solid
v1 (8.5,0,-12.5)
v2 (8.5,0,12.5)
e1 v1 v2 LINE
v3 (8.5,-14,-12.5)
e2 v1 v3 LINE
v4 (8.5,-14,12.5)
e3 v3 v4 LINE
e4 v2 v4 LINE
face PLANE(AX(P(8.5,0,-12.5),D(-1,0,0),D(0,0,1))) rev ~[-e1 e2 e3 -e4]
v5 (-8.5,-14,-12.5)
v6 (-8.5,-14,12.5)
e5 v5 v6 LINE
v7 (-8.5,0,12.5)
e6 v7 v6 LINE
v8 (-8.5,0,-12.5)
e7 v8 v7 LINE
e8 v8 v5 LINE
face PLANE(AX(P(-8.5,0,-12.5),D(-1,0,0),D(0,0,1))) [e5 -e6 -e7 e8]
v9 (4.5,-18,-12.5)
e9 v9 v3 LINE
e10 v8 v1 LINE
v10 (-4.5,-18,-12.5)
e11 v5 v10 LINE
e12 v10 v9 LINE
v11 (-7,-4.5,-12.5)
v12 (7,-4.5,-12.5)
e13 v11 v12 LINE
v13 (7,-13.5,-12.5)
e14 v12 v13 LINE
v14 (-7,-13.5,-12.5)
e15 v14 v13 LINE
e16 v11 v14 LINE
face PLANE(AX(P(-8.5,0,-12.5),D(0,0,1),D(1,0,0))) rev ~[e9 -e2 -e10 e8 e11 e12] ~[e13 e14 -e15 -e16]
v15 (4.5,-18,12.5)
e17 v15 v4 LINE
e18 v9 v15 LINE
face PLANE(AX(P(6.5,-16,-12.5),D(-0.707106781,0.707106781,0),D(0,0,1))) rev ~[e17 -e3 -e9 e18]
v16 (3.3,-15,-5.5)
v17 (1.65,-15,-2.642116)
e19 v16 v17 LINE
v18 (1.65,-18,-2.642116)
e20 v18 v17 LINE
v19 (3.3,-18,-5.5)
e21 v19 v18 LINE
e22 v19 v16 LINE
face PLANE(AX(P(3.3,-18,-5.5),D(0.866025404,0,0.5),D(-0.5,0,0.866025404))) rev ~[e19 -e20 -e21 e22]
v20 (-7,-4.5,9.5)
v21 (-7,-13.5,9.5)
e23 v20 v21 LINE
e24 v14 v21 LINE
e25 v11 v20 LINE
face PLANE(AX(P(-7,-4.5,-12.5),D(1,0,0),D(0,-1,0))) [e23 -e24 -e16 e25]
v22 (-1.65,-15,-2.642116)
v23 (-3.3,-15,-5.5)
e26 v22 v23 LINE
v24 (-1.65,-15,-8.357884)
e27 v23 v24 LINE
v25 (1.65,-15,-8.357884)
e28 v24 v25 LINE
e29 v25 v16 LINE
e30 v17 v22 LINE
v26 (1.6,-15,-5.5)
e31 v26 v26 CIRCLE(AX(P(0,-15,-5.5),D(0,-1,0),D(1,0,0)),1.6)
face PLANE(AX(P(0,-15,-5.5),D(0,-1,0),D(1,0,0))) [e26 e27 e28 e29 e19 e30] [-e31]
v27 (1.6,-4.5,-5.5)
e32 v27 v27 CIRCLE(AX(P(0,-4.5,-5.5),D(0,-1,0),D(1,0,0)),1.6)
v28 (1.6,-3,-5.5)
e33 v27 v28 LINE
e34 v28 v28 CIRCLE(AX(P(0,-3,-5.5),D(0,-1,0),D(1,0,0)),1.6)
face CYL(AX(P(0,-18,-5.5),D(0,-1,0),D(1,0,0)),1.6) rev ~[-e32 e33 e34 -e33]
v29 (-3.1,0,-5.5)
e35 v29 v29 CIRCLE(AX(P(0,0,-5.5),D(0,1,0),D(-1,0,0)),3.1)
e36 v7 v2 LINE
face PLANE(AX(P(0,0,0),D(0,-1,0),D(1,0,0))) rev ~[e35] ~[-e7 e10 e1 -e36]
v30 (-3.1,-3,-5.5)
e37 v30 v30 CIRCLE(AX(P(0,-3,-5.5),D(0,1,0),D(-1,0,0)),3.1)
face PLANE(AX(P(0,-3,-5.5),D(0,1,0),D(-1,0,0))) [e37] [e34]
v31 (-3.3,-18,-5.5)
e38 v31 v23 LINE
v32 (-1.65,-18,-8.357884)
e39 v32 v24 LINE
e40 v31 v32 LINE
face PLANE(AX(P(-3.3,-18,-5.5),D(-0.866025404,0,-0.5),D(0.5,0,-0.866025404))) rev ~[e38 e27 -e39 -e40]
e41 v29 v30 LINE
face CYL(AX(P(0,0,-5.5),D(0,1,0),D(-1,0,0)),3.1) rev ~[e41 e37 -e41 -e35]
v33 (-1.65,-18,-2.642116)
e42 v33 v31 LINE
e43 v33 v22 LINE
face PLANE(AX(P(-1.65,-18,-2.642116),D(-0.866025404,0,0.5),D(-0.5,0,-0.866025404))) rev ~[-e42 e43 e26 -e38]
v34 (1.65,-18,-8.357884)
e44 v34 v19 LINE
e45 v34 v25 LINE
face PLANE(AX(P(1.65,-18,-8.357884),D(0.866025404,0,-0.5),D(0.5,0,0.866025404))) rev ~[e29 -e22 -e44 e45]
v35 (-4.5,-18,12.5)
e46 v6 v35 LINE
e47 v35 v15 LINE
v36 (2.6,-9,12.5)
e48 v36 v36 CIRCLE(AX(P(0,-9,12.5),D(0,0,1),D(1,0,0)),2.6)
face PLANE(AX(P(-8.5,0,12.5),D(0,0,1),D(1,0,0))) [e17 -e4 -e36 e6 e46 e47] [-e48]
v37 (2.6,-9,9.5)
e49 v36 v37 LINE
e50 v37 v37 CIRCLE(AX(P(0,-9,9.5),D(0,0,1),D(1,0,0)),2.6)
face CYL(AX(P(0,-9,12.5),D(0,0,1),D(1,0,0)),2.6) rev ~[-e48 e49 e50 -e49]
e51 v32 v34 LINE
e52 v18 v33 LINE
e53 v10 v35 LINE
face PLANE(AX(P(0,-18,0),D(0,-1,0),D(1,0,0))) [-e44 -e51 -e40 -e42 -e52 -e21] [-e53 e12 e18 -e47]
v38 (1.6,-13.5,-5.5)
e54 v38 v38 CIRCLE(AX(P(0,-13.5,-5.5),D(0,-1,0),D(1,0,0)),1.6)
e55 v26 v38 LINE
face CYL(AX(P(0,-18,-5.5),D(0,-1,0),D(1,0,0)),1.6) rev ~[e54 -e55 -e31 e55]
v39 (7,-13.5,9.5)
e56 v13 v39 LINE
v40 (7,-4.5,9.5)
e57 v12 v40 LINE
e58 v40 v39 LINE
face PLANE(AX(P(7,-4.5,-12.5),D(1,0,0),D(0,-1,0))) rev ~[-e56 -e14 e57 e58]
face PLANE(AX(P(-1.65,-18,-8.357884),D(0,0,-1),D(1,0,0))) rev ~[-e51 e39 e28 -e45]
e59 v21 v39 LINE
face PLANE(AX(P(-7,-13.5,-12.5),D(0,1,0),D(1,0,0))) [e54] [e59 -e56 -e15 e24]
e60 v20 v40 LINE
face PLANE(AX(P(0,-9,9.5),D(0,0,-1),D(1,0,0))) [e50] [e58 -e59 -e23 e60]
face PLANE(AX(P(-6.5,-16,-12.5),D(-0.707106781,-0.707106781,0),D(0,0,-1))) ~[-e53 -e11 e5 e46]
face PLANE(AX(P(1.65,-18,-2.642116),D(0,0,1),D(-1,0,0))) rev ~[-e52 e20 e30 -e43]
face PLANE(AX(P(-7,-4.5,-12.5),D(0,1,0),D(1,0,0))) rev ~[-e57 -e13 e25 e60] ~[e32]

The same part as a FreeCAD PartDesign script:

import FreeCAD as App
import Part
import Sketcher

V = App.Vector
Q = App.Units.Quantity


def edges_at(feature, points):
    """Names of the edges that pass closest to the given points."""
    edges = feature.Shape.Edges
    near = lambda p: min(range(len(edges)), key=lambda i: edges[i].distToShape(Part.Vertex(*p))[0])
    return sorted({f"Edge{near(p) + 1}" for p in points})


def add_polygon(sketch, points):
    """Adds a closed chain of lines whose ends are joined by coincident constraints."""
    first, n = sketch.GeometryCount, len(points)
    for a, b in zip(points, points[1:] + points[:1]):
        sketch.addGeometry(Part.LineSegment(App.Vector(*a, 0), App.Vector(*b, 0)), False)
    for i in range(n):
        sketch.addConstraint(Sketcher.Constraint("Coincident", first + i, 2, first + (i + 1) % n, 1))

doc = App.newDocument("Part")
params = doc.addObject("Spreadsheet::Sheet", "Params")
for row, (alias, value) in enumerate([
    ("sketch1_width", "17 mm"),
    ("sketch1_height", "25 mm"),
    ("pad1_length", "18 mm"),
    ("sketch2_width", "14 mm"),
    ("sketch2_height", "9 mm"),
    ("pocket1_length", "22 mm"),
    ("sketch3_diameter", "3.2 mm"),
    ("pocket2_length", "25 mm"),
    ("sketch4_diameter", "5.2 mm"),
    ("pocket3_length", "25 mm"),
    ("sketch5_diameter", "6.2 mm"),
    ("pocket4_length", "3 mm"),
    ("sketch6_width", "3.3 mm"),
    ("sketch6_length", "3.3 mm"),
    ("pocket5_length", "3 mm"),
    ("chamfer_size", "4 mm"),
], start=1):
    params.set(f"A{row}", alias)
    params.set(f"B{row}", "=" + value)
    params.setAlias(f"B{row}", alias)

body = doc.addObject("PartDesign::Body", "Body")

# Sketch on XZ plane
sketch1 = body.newObject("Sketcher::SketchObject", "Sketch")
sketch1.AttachmentSupport = (doc.getObject("XZ_Plane"), [""])
sketch1.MapMode = "FlatFace"
add_polygon(sketch1, [(-8, 12), (-8, -12), (8, -12), (8, 12)])  # lines 0-3
sketch1.addConstraint([
    Sketcher.Constraint("Vertical", 0),
    Sketcher.Constraint("Horizontal", 1),
    Sketcher.Constraint("Vertical", 2),
    Sketcher.Constraint("Horizontal", 3),
    Sketcher.Constraint("Symmetric", 0, 2, 2, 2, -1, 1),
    Sketcher.Constraint("DistanceX", 1, 1, 1, 2, 17.0),
    Sketcher.Constraint("DistanceY", 0, 2, 0, 1, 25.0),
])
sketch1.setExpression("Constraints[9]", "Params.sketch1_width")
sketch1.setExpression("Constraints[10]", "Params.sketch1_height")
pad1 = body.newObject("PartDesign::Pad", "Pad")
pad1.Profile = sketch1
pad1.setExpression("Length", "Params.pad1_length")

# Sketch on XY plane
sketch2 = body.newObject("Sketcher::SketchObject", "Sketch001")
sketch2.AttachmentSupport = (doc.getObject("XY_Plane"), [""])
sketch2.MapMode = "FlatFace"
sketch2.AttachmentOffset = App.Placement(V(0, 0, -12.5), App.Rotation())
add_polygon(sketch2, [(-7, -14), (-7, -4), (7, -4), (7, -14)])  # lines 0-3
sketch2.addConstraint([
    Sketcher.Constraint("Vertical", 0),
    Sketcher.Constraint("Horizontal", 1),
    Sketcher.Constraint("Vertical", 2),
    Sketcher.Constraint("Horizontal", 3),
    Sketcher.Constraint("DistanceX", 1, 1, 1, 2, 14.0),
    Sketcher.Constraint("DistanceY", 0, 1, 0, 2, 9.0),
    Sketcher.Constraint("DistanceX", 0, 2, -1, 1, 7.0),
    Sketcher.Constraint("DistanceY", 0, 2, -1, 1, 4.5),
])
sketch2.setExpression("Constraints[8]", "Params.sketch2_width")
sketch2.setExpression("Constraints[9]", "Params.sketch2_height")
pocket1 = body.newObject("PartDesign::Pocket", "Pocket")
pocket1.Profile = sketch2
pocket1.setExpression("Length", "Params.pocket1_length")
pocket1.Reversed = True

# Sketch on XZ plane
sketch3 = body.newObject("Sketcher::SketchObject", "Sketch002")
sketch3.AttachmentSupport = (doc.getObject("XZ_Plane"), [""])
sketch3.MapMode = "FlatFace"
sketch3.AttachmentOffset = App.Placement(V(0, 0, 18), App.Rotation())
sketch3.addGeometry(Part.Circle(V(0, -5.5, 0), V(0, 0, 1), 1.6), False)
sketch3.addConstraint([
    Sketcher.Constraint("PointOnObject", 0, 3, -2),
    Sketcher.Constraint("Diameter", 0, 3.2),
    Sketcher.Constraint("DistanceY", 0, 3, -1, 1, 5.5),
])
sketch3.setExpression("Constraints[1]", "Params.sketch3_diameter")
pocket2 = body.newObject("PartDesign::Pocket", "Pocket001")
pocket2.Profile = sketch3
pocket2.setExpression("Length", "Params.pocket2_length")

# Sketch on XY plane
sketch4 = body.newObject("Sketcher::SketchObject", "Sketch003")
sketch4.AttachmentSupport = (doc.getObject("XY_Plane"), [""])
sketch4.MapMode = "FlatFace"
sketch4.AttachmentOffset = App.Placement(V(0, 0, 12.5), App.Rotation())
sketch4.addGeometry(Part.Circle(V(0, -9, 0), V(0, 0, 1), 2.6), False)
sketch4.addConstraint([
    Sketcher.Constraint("PointOnObject", 0, 3, -2),
    Sketcher.Constraint("Diameter", 0, 5.2),
    Sketcher.Constraint("DistanceY", 0, 3, -1, 1, 9.0),
])
sketch4.setExpression("Constraints[1]", "Params.sketch4_diameter")
pocket3 = body.newObject("PartDesign::Pocket", "Pocket002")
pocket3.Profile = sketch4
pocket3.setExpression("Length", "Params.pocket3_length")

# Sketch on XZ plane
sketch5 = body.newObject("Sketcher::SketchObject", "Sketch004")
sketch5.AttachmentSupport = (doc.getObject("XZ_Plane"), [""])
sketch5.MapMode = "FlatFace"
sketch5.addGeometry(Part.Circle(V(0, -5.5, 0), V(0, 0, 1), 3.1), False)
sketch5.addConstraint([
    Sketcher.Constraint("PointOnObject", 0, 3, -2),
    Sketcher.Constraint("Diameter", 0, 6.2),
    Sketcher.Constraint("DistanceY", 0, 3, -1, 1, 5.5),
])
sketch5.setExpression("Constraints[1]", "Params.sketch5_diameter")
pocket4 = body.newObject("PartDesign::Pocket", "Pocket003")
pocket4.Profile = sketch5
pocket4.setExpression("Length", "Params.pocket4_length")
pocket4.Reversed = True

# Sketch on XZ plane
sketch6 = body.newObject("Sketcher::SketchObject", "Sketch005")
sketch6.AttachmentSupport = (doc.getObject("XZ_Plane"), [""])
sketch6.MapMode = "FlatFace"
sketch6.AttachmentOffset = App.Placement(V(0, 0, 18), App.Rotation())
add_polygon(sketch6, [(-1.6, -8.4), (1.6, -8.4), (3.3, -5.5), (1.6, -2.6), (-1.6, -2.6), (-3.3, -5.5)])  # lines 0-5
sketch6.addConstraint([
    Sketcher.Constraint("Horizontal", 0),
    Sketcher.Constraint("Horizontal", 3),
    Sketcher.Constraint("Symmetric", 1, 2, 4, 2, -2),
    Sketcher.Constraint("Parallel", 1, 4),
    Sketcher.Constraint("Parallel", 2, 5),
    Sketcher.Constraint("Vertical", 0, 2, 2, 2),
    Sketcher.Constraint("Vertical", 3, 2, 5, 2),
    Sketcher.Constraint("Angle", 1, Q("60 deg")),
    Sketcher.Constraint("DistanceX", 0, 1, 0, 2, 3.3),
    Sketcher.Constraint("Distance", 1, 3.3),
    Sketcher.Constraint("DistanceY", 1, 2, -1, 1, 5.5),
])
sketch6.setExpression("Constraints[14]", "Params.sketch6_width")
sketch6.setExpression("Constraints[15]", "Params.sketch6_length")
pocket5 = body.newObject("PartDesign::Pocket", "Pocket004")
pocket5.Profile = sketch6
pocket5.setExpression("Length", "Params.pocket5_length")
doc.recompute()

chamfer = body.newObject("PartDesign::Chamfer", "Chamfer")
chamfer.Base = (pocket5, edges_at(pocket5, [(8.5, -18, 0), (-8.5, -18, 0)]))
chamfer.setExpression("Size", "Params.chamfer_size")

doc.recompute()
